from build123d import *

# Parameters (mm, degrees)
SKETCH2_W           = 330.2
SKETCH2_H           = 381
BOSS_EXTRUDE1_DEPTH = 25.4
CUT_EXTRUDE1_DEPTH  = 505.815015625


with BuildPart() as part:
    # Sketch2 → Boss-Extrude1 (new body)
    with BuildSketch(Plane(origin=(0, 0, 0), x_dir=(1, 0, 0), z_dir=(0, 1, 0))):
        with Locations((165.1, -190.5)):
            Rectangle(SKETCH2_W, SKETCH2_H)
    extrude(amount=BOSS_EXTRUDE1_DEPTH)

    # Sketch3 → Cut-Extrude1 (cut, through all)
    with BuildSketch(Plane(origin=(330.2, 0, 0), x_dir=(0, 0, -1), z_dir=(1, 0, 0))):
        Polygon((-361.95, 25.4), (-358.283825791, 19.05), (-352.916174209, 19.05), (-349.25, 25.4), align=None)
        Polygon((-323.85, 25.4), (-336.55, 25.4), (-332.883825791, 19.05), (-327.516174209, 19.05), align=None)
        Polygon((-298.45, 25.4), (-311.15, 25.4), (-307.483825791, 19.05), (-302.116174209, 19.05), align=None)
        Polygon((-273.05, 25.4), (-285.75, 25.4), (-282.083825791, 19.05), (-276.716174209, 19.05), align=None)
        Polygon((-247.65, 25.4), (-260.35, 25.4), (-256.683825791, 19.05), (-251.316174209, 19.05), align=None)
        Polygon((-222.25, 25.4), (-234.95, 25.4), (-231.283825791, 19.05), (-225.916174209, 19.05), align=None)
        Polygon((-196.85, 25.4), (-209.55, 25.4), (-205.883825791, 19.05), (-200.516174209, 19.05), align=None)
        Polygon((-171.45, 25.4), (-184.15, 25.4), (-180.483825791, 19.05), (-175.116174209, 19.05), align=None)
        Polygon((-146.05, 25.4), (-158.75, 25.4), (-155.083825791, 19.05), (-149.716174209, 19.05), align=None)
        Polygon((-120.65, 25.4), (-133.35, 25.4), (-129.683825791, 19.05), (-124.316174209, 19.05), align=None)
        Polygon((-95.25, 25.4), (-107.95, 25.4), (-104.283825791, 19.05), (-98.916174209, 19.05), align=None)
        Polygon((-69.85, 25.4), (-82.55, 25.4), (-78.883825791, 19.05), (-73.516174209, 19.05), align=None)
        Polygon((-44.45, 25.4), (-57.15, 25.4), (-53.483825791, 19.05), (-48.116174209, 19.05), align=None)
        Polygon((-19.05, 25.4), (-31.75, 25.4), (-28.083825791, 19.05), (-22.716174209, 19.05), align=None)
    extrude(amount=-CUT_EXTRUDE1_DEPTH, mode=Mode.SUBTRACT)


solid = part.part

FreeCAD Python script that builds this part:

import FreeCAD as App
import Part
import Sketcher
from FreeCAD import Vector
Q = App.Units.Quantity

doc = App.newDocument("Part")
body = doc.addObject("PartDesign::Body", "Body")

# Sketch on XZ plane
sketch1 = body.newObject("Sketcher::SketchObject", "Sketch")
sketch1.AttachmentSupport = (doc.getObject("XZ_Plane"), [""])
sketch1.MapMode = "FlatFace"
sketch1.addGeometry([
    Part.LineSegment(Vector(0, 0, 0), Vector(0, 381, 0)),
    Part.LineSegment(Vector(0, 381, 0), Vector(330, 381, 0)),
    Part.LineSegment(Vector(330, 381, 0), Vector(330, 0, 0)),
    Part.LineSegment(Vector(330, 0, 0), Vector(0, 0, 0)),
], False)
sketch1.addConstraint([
    Sketcher.Constraint("Coincident", 0, 2, 1, 1),
    Sketcher.Constraint("Coincident", 1, 2, 2, 1),
    Sketcher.Constraint("Coincident", 2, 2, 3, 1),
    Sketcher.Constraint("Coincident", 3, 2, 0, 1),
    Sketcher.Constraint("Vertical", 0),
    Sketcher.Constraint("Horizontal", 1),
    Sketcher.Constraint("Vertical", 2),
    Sketcher.Constraint("Horizontal", 3),
    Sketcher.Constraint("Coincident", 3, 2, -1, 1),
    Sketcher.Constraint("DistanceX", 1, 1, 1, 2, Q("13 in")),
    Sketcher.Constraint("DistanceY", 0, 1, 0, 2, Q("15 in")),
])
pad1 = body.newObject("PartDesign::Pad", "Pad")
pad1.Profile = sketch1
pad1.Length = Q("1 in")
pad1.Reversed = True

# Sketch on YZ plane
sketch2 = body.newObject("Sketcher::SketchObject", "Sketch001")
sketch2.AttachmentSupport = (doc.getObject("YZ_Plane"), [""])
sketch2.MapMode = "FlatFace"
sketch2.AttachmentOffset = App.Placement(Vector(0, 0, 13 * 25.4), App.Rotation())
sketch2.addGeometry([
    Part.LineSegment(Vector(25, 362, 0), Vector(19, 358, 0)),  # 0
    Part.LineSegment(Vector(19, 358, 0), Vector(19, 353, 0)),  # 1
    Part.LineSegment(Vector(19, 353, 0), Vector(25, 349, 0)),  # 2
    Part.LineSegment(Vector(25, 349, 0), Vector(25, 362, 0)),  # 3
    Part.LineSegment(Vector(25, 324, 0), Vector(25, 337, 0)),  # 4
    Part.LineSegment(Vector(25, 337, 0), Vector(19, 333, 0)),  # 5
    Part.LineSegment(Vector(19, 333, 0), Vector(19, 328, 0)),  # 6
    Part.LineSegment(Vector(19, 328, 0), Vector(25, 324, 0)),  # 7
    Part.LineSegment(Vector(25, 298, 0), Vector(25, 311, 0)),  # 8
    Part.LineSegment(Vector(25, 311, 0), Vector(19, 307, 0)),  # 9
    Part.LineSegment(Vector(19, 307, 0), Vector(19, 302, 0)),  # 10
    Part.LineSegment(Vector(19, 302, 0), Vector(25, 298, 0)),  # 11
    Part.LineSegment(Vector(25, 273, 0), Vector(25, 286, 0)),  # 12
    Part.LineSegment(Vector(25, 286, 0), Vector(19, 282, 0)),  # 13
    Part.LineSegment(Vector(19, 282, 0), Vector(19, 277, 0)),  # 14
    Part.LineSegment(Vector(19, 277, 0), Vector(25, 273, 0)),  # 15
    Part.LineSegment(Vector(25, 248, 0), Vector(25, 260, 0)),  # 16
    Part.LineSegment(Vector(25, 260, 0), Vector(19, 257, 0)),  # 17
    Part.LineSegment(Vector(19, 257, 0), Vector(19, 251, 0)),  # 18
    Part.LineSegment(Vector(19, 251, 0), Vector(25, 248, 0)),  # 19
    Part.LineSegment(Vector(25, 222, 0), Vector(25, 235, 0)),  # 20
    Part.LineSegment(Vector(25, 235, 0), Vector(19, 231, 0)),  # 21
    Part.LineSegment(Vector(19, 231, 0), Vector(19, 226, 0)),  # 22
    Part.LineSegment(Vector(19, 226, 0), Vector(25, 222, 0)),  # 23
    Part.LineSegment(Vector(25, 197, 0), Vector(25, 210, 0)),  # 24
    Part.LineSegment(Vector(25, 210, 0), Vector(19, 206, 0)),  # 25
    Part.LineSegment(Vector(19, 206, 0), Vector(19, 201, 0)),  # 26
    Part.LineSegment(Vector(19, 201, 0), Vector(25, 197, 0)),  # 27
    Part.LineSegment(Vector(25, 171, 0), Vector(25, 184, 0)),  # 28
    Part.LineSegment(Vector(25, 184, 0), Vector(19, 180, 0)),  # 29
    Part.LineSegment(Vector(19, 180, 0), Vector(19, 175, 0)),  # 30
    Part.LineSegment(Vector(19, 175, 0), Vector(25, 171, 0)),  # 31
    Part.LineSegment(Vector(25, 146, 0), Vector(25, 159, 0)),  # 32
    Part.LineSegment(Vector(25, 159, 0), Vector(19, 155, 0)),  # 33
    Part.LineSegment(Vector(19, 155, 0), Vector(19, 150, 0)),  # 34
    Part.LineSegment(Vector(19, 150, 0), Vector(25, 146, 0)),  # 35
    Part.LineSegment(Vector(25, 121, 0), Vector(25, 133, 0)),  # 36
    Part.LineSegment(Vector(25, 133, 0), Vector(19, 130, 0)),  # 37
    Part.LineSegment(Vector(19, 130, 0), Vector(19, 124, 0)),  # 38
    Part.LineSegment(Vector(19, 124, 0), Vector(25, 121, 0)),  # 39
    Part.LineSegment(Vector(25, 95, 0), Vector(25, 108, 0)),  # 40
    Part.LineSegment(Vector(25, 108, 0), Vector(19, 104, 0)),  # 41
    Part.LineSegment(Vector(19, 104, 0), Vector(19, 99, 0)),  # 42
    Part.LineSegment(Vector(19, 99, 0), Vector(25, 95, 0)),  # 43
    Part.LineSegment(Vector(25, 70, 0), Vector(25, 83, 0)),  # 44
    Part.LineSegment(Vector(25, 83, 0), Vector(19, 79, 0)),  # 45
    Part.LineSegment(Vector(19, 79, 0), Vector(19, 74, 0)),  # 46
    Part.LineSegment(Vector(19, 74, 0), Vector(25, 70, 0)),  # 47
    Part.LineSegment(Vector(25, 44, 0), Vector(25, 57, 0)),  # 48
    Part.LineSegment(Vector(25, 57, 0), Vector(19, 53, 0)),  # 49
    Part.LineSegment(Vector(19, 53, 0), Vector(19, 48, 0)),  # 50
    Part.LineSegment(Vector(19, 48, 0), Vector(25, 44, 0)),  # 51
    Part.LineSegment(Vector(25, 19, 0), Vector(25, 32, 0)),  # 52
    Part.LineSegment(Vector(25, 32, 0), Vector(19, 28, 0)),  # 53
    Part.LineSegment(Vector(19, 28, 0), Vector(19, 23, 0)),  # 54
    Part.LineSegment(Vector(19, 23, 0), Vector(25, 19, 0)),  # 55
], False)
sketch2.addConstraint([
    Sketcher.Constraint("Coincident", 0, 2, 1, 1),
    Sketcher.Constraint("Coincident", 1, 2, 2, 1),
    Sketcher.Constraint("Coincident", 2, 2, 3, 1),
    Sketcher.Constraint("Coincident", 3, 2, 0, 1),
    Sketcher.Constraint("Coincident", 4, 2, 5, 1),
    Sketcher.Constraint("Coincident", 5, 2, 6, 1),
    Sketcher.Constraint("Coincident", 6, 2, 7, 1),
    Sketcher.Constraint("Coincident", 7, 2, 4, 1),
    Sketcher.Constraint("Coincident", 8, 2, 9, 1),
    Sketcher.Constraint("Coincident", 9, 2, 10, 1),
    Sketcher.Constraint("Coincident", 10, 2, 11, 1),
    Sketcher.Constraint("Coincident", 11, 2, 8, 1),
    Sketcher.Constraint("Coincident", 12, 2, 13, 1),
    Sketcher.Constraint("Coincident", 13, 2, 14, 1),
    Sketcher.Constraint("Coincident", 14, 2, 15, 1),
    Sketcher.Constraint("Coincident", 15, 2, 12, 1),
    Sketcher.Constraint("Coincident", 16, 2, 17, 1),
    Sketcher.Constraint("Coincident", 17, 2, 18, 1),
    Sketcher.Constraint("Coincident", 18, 2, 19, 1),
    Sketcher.Constraint("Coincident", 19, 2, 16, 1),
    Sketcher.Constraint("Coincident", 20, 2, 21, 1),
    Sketcher.Constraint("Coincident", 21, 2, 22, 1),
    Sketcher.Constraint("Coincident", 22, 2, 23, 1),
    Sketcher.Constraint("Coincident", 23, 2, 20, 1),
    Sketcher.Constraint("Coincident", 24, 2, 25, 1),
    Sketcher.Constraint("Coincident", 25, 2, 26, 1),
    Sketcher.Constraint("Coincident", 26, 2, 27, 1),
    Sketcher.Constraint("Coincident", 27, 2, 24, 1),
    Sketcher.Constraint("Coincident", 28, 2, 29, 1),
    Sketcher.Constraint("Coincident", 29, 2, 30, 1),
    Sketcher.Constraint("Coincident", 30, 2, 31, 1),
    Sketcher.Constraint("Coincident", 31, 2, 28, 1),
    Sketcher.Constraint("Coincident", 32, 2, 33, 1),
    Sketcher.Constraint("Coincident", 33, 2, 34, 1),
    Sketcher.Constraint("Coincident", 34, 2, 35, 1),
    Sketcher.Constraint("Coincident", 35, 2, 32, 1),
    Sketcher.Constraint("Coincident", 36, 2, 37, 1),
    Sketcher.Constraint("Coincident", 37, 2, 38, 1),
    Sketcher.Constraint("Coincident", 38, 2, 39, 1),
    Sketcher.Constraint("Coincident", 39, 2, 36, 1),
    Sketcher.Constraint("Coincident", 40, 2, 41, 1),
    Sketcher.Constraint("Coincident", 41, 2, 42, 1),
    Sketcher.Constraint("Coincident", 42, 2, 43, 1),
    Sketcher.Constraint("Coincident", 43, 2, 40, 1),
    Sketcher.Constraint("Coincident", 44, 2, 45, 1),
    Sketcher.Constraint("Coincident", 45, 2, 46, 1),
    Sketcher.Constraint("Coincident", 46, 2, 47, 1),
    Sketcher.Constraint("Coincident", 47, 2, 44, 1),
    Sketcher.Constraint("Coincident", 48, 2, 49, 1),
    Sketcher.Constraint("Coincident", 49, 2, 50, 1),
    Sketcher.Constraint("Coincident", 50, 2, 51, 1),
    Sketcher.Constraint("Coincident", 51, 2, 48, 1),
    Sketcher.Constraint("Coincident", 52, 2, 53, 1),
    Sketcher.Constraint("Coincident", 53, 2, 54, 1),
    Sketcher.Constraint("Coincident", 54, 2, 55, 1),
    Sketcher.Constraint("Coincident", 55, 2, 52, 1),
    Sketcher.Constraint("Vertical", 1),
    Sketcher.Constraint("Vertical", 3),
    Sketcher.Constraint("Vertical", 4),
    Sketcher.Constraint("Vertical", 6),
    Sketcher.Constraint("Vertical", 8),
    Sketcher.Constraint("Vertical", 10),
    Sketcher.Constraint("Vertical", 12),
    Sketcher.Constraint("Vertical", 14),
    Sketcher.Constraint("Vertical", 16),
    Sketcher.Constraint("Vertical", 18),
    Sketcher.Constraint("Vertical", 20),
    Sketcher.Constraint("Vertical", 22),
    Sketcher.Constraint("Vertical", 24),
    Sketcher.Constraint("Vertical", 26),
    Sketcher.Constraint("Vertical", 28),
    Sketcher.Constraint("Vertical", 30),
    Sketcher.Constraint("Vertical", 32),
    Sketcher.Constraint("Vertical", 34),
    Sketcher.Constraint("Vertical", 36),
    Sketcher.Constraint("Vertical", 38),
    Sketcher.Constraint("Vertical", 40),
    Sketcher.Constraint("Vertical", 42),
    Sketcher.Constraint("Vertical", 44),
    Sketcher.Constraint("Vertical", 46),
    Sketcher.Constraint("Vertical", 48),
    Sketcher.Constraint("Vertical", 50),
    Sketcher.Constraint("Vertical", 52),
    Sketcher.Constraint("Vertical", 54),
    Sketcher.Constraint("Parallel", 0, 5),
    Sketcher.Constraint("Parallel", 2, 7),
    Sketcher.Constraint("Parallel", 5, 9),
    Sketcher.Constraint("Parallel", 7, 11),
    Sketcher.Constraint("Parallel", 9, 13),
    Sketcher.Constraint("Parallel", 11, 15),
    Sketcher.Constraint("Parallel", 13, 17),
    Sketcher.Constraint("Parallel", 15, 19),
    Sketcher.Constraint("Parallel", 17, 21),
    Sketcher.Constraint("Parallel", 19, 23),
    Sketcher.Constraint("Parallel", 21, 25),
    Sketcher.Constraint("Parallel", 23, 27),
    Sketcher.Constraint("Parallel", 25, 29),
    Sketcher.Constraint("Parallel", 27, 31),
    Sketcher.Constraint("Parallel", 29, 33),
    Sketcher.Constraint("Parallel", 31, 35),
    Sketcher.Constraint("Parallel", 33, 37),
    Sketcher.Constraint("Parallel", 35, 39),
    Sketcher.Constraint("Parallel", 37, 41),
    Sketcher.Constraint("Parallel", 39, 43),
    Sketcher.Constraint("Parallel", 41, 45),
    Sketcher.Constraint("Parallel", 43, 47),
    Sketcher.Constraint("Parallel", 45, 49),
    Sketcher.Constraint("Parallel", 47, 51),
    Sketcher.Constraint("Parallel", 49, 53),
    Sketcher.Constraint("Parallel", 51, 55),
    Sketcher.Constraint("Vertical", 3, 2, 4, 2),
    Sketcher.Constraint("Vertical", 1, 2, 5, 2),
    Sketcher.Constraint("Vertical", 7, 2, 8, 2),
    Sketcher.Constraint("Vertical", 6, 2, 9, 2),
    Sketcher.Constraint("Vertical", 11, 2, 12, 2),
    Sketcher.Constraint("Vertical", 10, 2, 13, 2),
    Sketcher.Constraint("Vertical", 15, 2, 16, 2),
    Sketcher.Constraint("Vertical", 14, 2, 17, 2),
    Sketcher.Constraint("Vertical", 19, 2, 20, 2),
    Sketcher.Constraint("Vertical", 18, 2, 21, 2),
    Sketcher.Constraint("Vertical", 23, 2, 24, 2),
    Sketcher.Constraint("Vertical", 22, 2, 25, 2),
    Sketcher.Constraint("Vertical", 27, 2, 28, 2),
    Sketcher.Constraint("Vertical", 26, 2, 29, 2),
    Sketcher.Constraint("Vertical", 31, 2, 32, 2),
    Sketcher.Constraint("Vertical", 30, 2, 33, 2),
    Sketcher.Constraint("Vertical", 35, 2, 36, 2),
    Sketcher.Constraint("Vertical", 34, 2, 37, 2),
    Sketcher.Constraint("Vertical", 39, 2, 40, 2),
    Sketcher.Constraint("Vertical", 38, 2, 41, 2),
    Sketcher.Constraint("Vertical", 43, 2, 44, 2),
    Sketcher.Constraint("Vertical", 42, 2, 45, 2),
    Sketcher.Constraint("Vertical", 47, 2, 48, 2),
    Sketcher.Constraint("Vertical", 46, 2, 49, 2),
    Sketcher.Constraint("Vertical", 51, 2, 52, 2),
    Sketcher.Constraint("Vertical", 50, 2, 53, 2),
    Sketcher.Constraint("Equal", 3, 4),
    Sketcher.Constraint("Equal", 4, 8),
    Sketcher.Constraint("Equal", 8, 12),
    Sketcher.Constraint("Equal", 12, 16),
    Sketcher.Constraint("Equal", 16, 20),
    Sketcher.Constraint("Equal", 20, 24),
    Sketcher.Constraint("Equal", 24, 28),
    Sketcher.Constraint("Equal", 28, 32),
    Sketcher.Constraint("Equal", 32, 36),
    Sketcher.Constraint("Equal", 36, 40),
    Sketcher.Constraint("Equal", 40, 44),
    Sketcher.Constraint("Equal", 44, 48),
    Sketcher.Constraint("Equal", 48, 52),
    Sketcher.Constraint("Equal", 0, 2),
    Sketcher.Constraint("DistanceY", 3, 1, 3, 2, Q("0.5 in")),
    Sketcher.Constraint("DistanceX", -1, 1, 2, 2, Q("1 in")),
    Sketcher.Constraint("Angle", 0, Q("-150 deg")),
    Sketcher.Constraint("DistanceY", 4, 2, 3, 2, Q("1 in")),
    Sketcher.Constraint("DistanceY", 8, 2, 4, 2, Q("1 in")),
    Sketcher.Constraint("DistanceY", 12, 2, 8, 2, Q("1 in")),
    Sketcher.Constraint("DistanceY", 16, 2, 12, 2, Q("1 in")),
    Sketcher.Constraint("DistanceY", 20, 2, 16, 2, Q("1 in")),
    Sketcher.Constraint("DistanceY", 24, 2, 20, 2, Q("1 in")),
    Sketcher.Constraint("DistanceY", 28, 2, 24, 2, Q("1 in")),
    Sketcher.Constraint("DistanceY", 32, 2, 28, 2, Q("1 in")),
    Sketcher.Constraint("DistanceY", 36, 2, 32, 2, Q("1 in")),
    Sketcher.Constraint("DistanceY", 40, 2, 36, 2, Q("1 in")),
    Sketcher.Constraint("DistanceY", 44, 2, 40, 2, Q("1 in")),
    Sketcher.Constraint("DistanceY", 48, 2, 44, 2, Q("1 in")),
    Sketcher.Constraint("DistanceY", 52, 2, 48, 2, Q("1 in")),
    Sketcher.Constraint("DistanceX", -1, 1, 0, 2, Q("0.75 in")),
    Sketcher.Constraint("DistanceY", -1, 1, 2, 2, Q("13.75 in")),
])
pocket1 = body.newObject("PartDesign::Pocket", "Pocket")
pocket1.Profile = sketch2
pocket1.Type = "ThroughAll"

doc.recompute()
